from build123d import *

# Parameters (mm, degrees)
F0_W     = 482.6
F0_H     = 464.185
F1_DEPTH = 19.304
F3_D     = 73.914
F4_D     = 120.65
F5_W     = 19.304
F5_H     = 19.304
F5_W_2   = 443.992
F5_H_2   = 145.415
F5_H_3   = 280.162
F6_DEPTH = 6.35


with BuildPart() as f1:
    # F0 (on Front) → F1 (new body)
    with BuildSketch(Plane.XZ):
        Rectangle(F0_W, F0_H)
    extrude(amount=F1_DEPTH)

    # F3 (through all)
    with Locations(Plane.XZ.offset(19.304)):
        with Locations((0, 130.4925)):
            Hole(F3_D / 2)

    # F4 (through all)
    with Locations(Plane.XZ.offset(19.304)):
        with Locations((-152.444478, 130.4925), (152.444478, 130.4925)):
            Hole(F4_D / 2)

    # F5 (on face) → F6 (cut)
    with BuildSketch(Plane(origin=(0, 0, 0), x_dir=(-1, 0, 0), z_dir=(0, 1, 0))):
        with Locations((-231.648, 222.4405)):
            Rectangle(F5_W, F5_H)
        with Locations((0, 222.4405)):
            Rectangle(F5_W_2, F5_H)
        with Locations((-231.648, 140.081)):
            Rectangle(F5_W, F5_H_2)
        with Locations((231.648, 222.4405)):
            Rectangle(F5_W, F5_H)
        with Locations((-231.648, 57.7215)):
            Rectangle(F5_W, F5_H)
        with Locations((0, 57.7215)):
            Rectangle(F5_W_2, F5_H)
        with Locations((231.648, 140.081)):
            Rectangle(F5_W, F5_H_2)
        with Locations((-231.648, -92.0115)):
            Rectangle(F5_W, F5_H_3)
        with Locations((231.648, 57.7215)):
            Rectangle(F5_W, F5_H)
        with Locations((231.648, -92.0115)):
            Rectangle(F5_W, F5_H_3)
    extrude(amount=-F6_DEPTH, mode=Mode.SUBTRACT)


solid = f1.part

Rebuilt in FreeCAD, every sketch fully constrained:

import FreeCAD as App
import Part
import Sketcher
from FreeCAD import Vector
Q = App.Units.Quantity


def add_polygon(sketch, points):
    """Adds a closed chain of lines whose ends are joined by coincident constraints."""
    first, n = sketch.GeometryCount, len(points)
    for a, b in zip(points, points[1:] + points[:1]):
        sketch.addGeometry(Part.LineSegment(App.Vector(*a, 0), App.Vector(*b, 0)), False)
    for i in range(n):
        sketch.addConstraint(Sketcher.Constraint("Coincident", first + i, 2, first + (i + 1) % n, 1))

doc = App.newDocument("Part")
params = doc.addObject("Spreadsheet::Sheet", "Params")
for row, (alias, value) in enumerate([
    ("sketch1_width", "19 in"),
    ("sketch1_height", "18.275 in"),
    ("pad1_length", "0.76 in"),
    ("sketch2_diameter", "2.91 in"),
    ("hole_diameter", "2.91 in"),
    ("sketch3_diameter", "4.75 in"),
    ("hole2_diameter", "4.75 in"),
    ("sketch4_width", "19 in"),
    ("sketch4_width2", "17.48 in"),
    ("sketch4_height", "11.03 in"),
    ("sketch4_height2", "18.275 in"),
    ("sketch4_height3", "5.725 in"),
    ("pocket1_length", "0.25 in"),
], start=1):
    params.set(f"A{row}", alias)
    params.set(f"B{row}", "=" + value)
    params.setAlias(f"B{row}", alias)

body = doc.addObject("PartDesign::Body", "Body")

# Sketch on XZ plane
sketch1 = doc.addObject("Sketcher::SketchObject", "Sketch")
body.addObject(sketch1)
sketch1.AttachmentSupport = (doc.XZ_Plane, [""])
sketch1.MapMode = "FlatFace"
add_polygon(sketch1, [(-241.3, 232.0925), (-241.3, -232.0925), (241.3, -232.0925), (241.3, 232.0925)])  # lines 0-3
sketch1.addConstraint([
    Sketcher.Constraint("Vertical", 0),
    Sketcher.Constraint("Horizontal", 1),
    Sketcher.Constraint("Vertical", 2),
    Sketcher.Constraint("Horizontal", 3),
    Sketcher.Constraint("Symmetric", 0, 2, 2, 2, -1, 1),
    Sketcher.Constraint("DistanceX", 1, 1, 1, 2, Q("19 in")),
    Sketcher.Constraint("DistanceY", 0, 2, 0, 1, Q("18.275 in")),
])
sketch1.setExpression("Constraints[9]", "Params.sketch1_width")
sketch1.setExpression("Constraints[10]", "Params.sketch1_height")
pad1 = doc.addObject("PartDesign::Pad", "Pad")
body.addObject(pad1)
pad1.Profile = sketch1
pad1.setExpression("Length", "Params.pad1_length")

# Sketch on XZ plane
sketch2 = doc.addObject("Sketcher::SketchObject", "Sketch001")
body.addObject(sketch2)
sketch2.AttachmentSupport = (doc.XZ_Plane, [""])
sketch2.MapMode = "FlatFace"
sketch2.AttachmentOffset = App.Placement(Vector(0, 0, 0.76 * 25.4), App.Rotation())
sketch2.addGeometry(Part.Circle(Vector(0, 130.4925, 0), Vector(0, 0, 1), 36.957), False)
sketch2.addConstraint([
    Sketcher.Constraint("PointOnObject", 0, 3, -2),
    Sketcher.Constraint("Diameter", 0, Q("2.91 in")),
    Sketcher.Constraint("DistanceY", -1, 1, 0, 3, Q("5.1375 in")),
])
sketch2.setExpression("Constraints[1]", "Params.sketch2_diameter")
doc.recompute()
hole = doc.addObject("PartDesign::Hole", "Hole")
body.addObject(hole)
hole.Profile = sketch2
hole.ThreadType = "None"
hole.setExpression("Diameter", "Params.hole_diameter")
hole.DepthType = "ThroughAll"

# Sketch on XZ plane
sketch3 = doc.addObject("Sketcher::SketchObject", "Sketch002")
body.addObject(sketch3)
sketch3.AttachmentSupport = (doc.XZ_Plane, [""])
sketch3.MapMode = "FlatFace"
sketch3.AttachmentOffset = App.Placement(Vector(0, 0, 0.76 * 25.4), App.Rotation())
sketch3.addGeometry([
    Part.Circle(Vector(-152.444478, 130.4925, 0), Vector(0, 0, 1), 60.325),
    Part.Circle(Vector(152.444478, 130.4925, 0), Vector(0, 0, 1), 60.325),
], False)
sketch3.addConstraint([
    Sketcher.Constraint("Equal", 0, 1),
    Sketcher.Constraint("Symmetric", 0, 3, 1, 3, -2),
    Sketcher.Constraint("Diameter", 0, Q("4.75 in")),
    Sketcher.Constraint("DistanceY", -1, 1, 0, 3, Q("5.1375 in")),
    Sketcher.Constraint("DistanceX", 0, 3, -1, 1, Q("152.444478 mm")),
])
sketch3.setExpression("Constraints[2]", "Params.sketch3_diameter")
doc.recompute()
hole2 = doc.addObject("PartDesign::Hole", "Hole001")
body.addObject(hole2)
hole2.Profile = sketch3
hole2.ThreadType = "None"
hole2.setExpression("Diameter", "Params.hole2_diameter")
hole2.DepthType = "ThroughAll"

# Sketch on XZ plane
sketch4 = doc.addObject("Sketcher::SketchObject", "Sketch003")
body.addObject(sketch4)
sketch4.AttachmentSupport = (doc.XZ_Plane, [""])
sketch4.MapMode = "FlatFace"
add_polygon(sketch4, [(221.996, 48.0695), (-221.996, 48.0695), (-221.996, -232.0925), (-241.3, -232.0925), (-241.3, 232.0925), (241.3, 232.0925), (241.3, -232.0925), (221.996, -232.0925)])  # lines 0-7
add_polygon(sketch4, [(-221.996, 67.3735), (221.996, 67.3735), (221.996, 212.7885), (-221.996, 212.7885)])  # lines 8-11
sketch4.addConstraint([
    Sketcher.Constraint("Horizontal", 0),
    Sketcher.Constraint("Vertical", 1),
    Sketcher.Constraint("Horizontal", 2),
    Sketcher.Constraint("Vertical", 3),
    Sketcher.Constraint("Horizontal", 4),
    Sketcher.Constraint("Vertical", 5),
    Sketcher.Constraint("Horizontal", 6),
    Sketcher.Constraint("Vertical", 7),
    Sketcher.Constraint("Horizontal", 8),
    Sketcher.Constraint("Vertical", 9),
    Sketcher.Constraint("Horizontal", 10),
    Sketcher.Constraint("Vertical", 11),
    Sketcher.Constraint("Symmetric", 2, 2, 4, 2, -1, 1),
    Sketcher.Constraint("Symmetric", 1, 2, 6, 2, -2),
    Sketcher.Constraint("Vertical", 7, 2, 8, 2),
    Sketcher.Constraint("Vertical", 1, 2, 10, 2),
    Sketcher.Constraint("DistanceX", 4, 1, 4, 2, Q("19 in")),
    Sketcher.Constraint("DistanceX", 0, 2, 0, 1, Q("17.48 in")),
    Sketcher.Constraint("DistanceY", 1, 2, 1, 1, Q("11.03 in")),
    Sketcher.Constraint("DistanceY", 3, 1, 3, 2, Q("18.275 in")),
    Sketcher.Constraint("DistanceY", 9, 1, 9, 2, Q("5.725 in")),
    Sketcher.Constraint("DistanceY", 7, 2, 8, 2, Q("0.76 in")),
])
sketch4.setExpression("Constraints[28]", "Params.sketch4_width")
sketch4.setExpression("Constraints[29]", "Params.sketch4_width2")
sketch4.setExpression("Constraints[30]", "Params.sketch4_height")
sketch4.setExpression("Constraints[31]", "Params.sketch4_height2")
sketch4.setExpression("Constraints[32]", "Params.sketch4_height3")
pocket1 = doc.addObject("PartDesign::Pocket", "Pocket")
body.addObject(pocket1)
pocket1.Profile = sketch4
pocket1.setExpression("Length", "Params.pocket1_length")
pocket1.Reversed = True

doc.recompute()
